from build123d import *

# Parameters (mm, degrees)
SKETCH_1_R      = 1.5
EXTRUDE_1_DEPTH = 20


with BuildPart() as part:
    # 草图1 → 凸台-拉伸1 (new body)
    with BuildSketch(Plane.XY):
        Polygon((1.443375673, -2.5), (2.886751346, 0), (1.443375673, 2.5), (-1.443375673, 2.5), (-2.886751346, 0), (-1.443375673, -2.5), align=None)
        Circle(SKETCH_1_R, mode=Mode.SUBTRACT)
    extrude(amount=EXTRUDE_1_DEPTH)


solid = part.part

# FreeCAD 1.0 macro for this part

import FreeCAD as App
import Part
import Sketcher
Q = App.Units.Quantity


def add_polygon(sketch, points):
    """Adds a closed chain of lines whose ends are joined by coincident constraints."""
    first, n = sketch.GeometryCount, len(points)
    for a, b in zip(points, points[1:] + points[:1]):
        sketch.addGeometry(Part.LineSegment(App.Vector(*a, 0), App.Vector(*b, 0)), False)
    for i in range(n):
        sketch.addConstraint(Sketcher.Constraint("Coincident", first + i, 2, first + (i + 1) % n, 1))

doc = App.newDocument("Part")
body = doc.addObject("PartDesign::Body", "Body")

sketch1 = body.newObject("Sketcher::SketchObject", "Sketch")
sketch1.AttachmentSupport = (doc.getObject("XY_Plane"), [""])
sketch1.MapMode = "FlatFace"
add_polygon(sketch1, [(1.4, -2.5), (2.9, 0), (1.4, 2.5), (-1.4, 2.5), (-2.9, 0), (-1.4, -2.5)])
sketch1.addGeometry(Part.Circle(App.Vector(0, 0, 0), App.Vector(0, 0, 1), 1.5), False)
sketch1.addConstraint(Sketcher.Constraint("Horizontal", 2))
sketch1.addConstraint(Sketcher.Constraint("Horizontal", 5))
sketch1.addConstraint(Sketcher.Constraint("Coincident", 6, 3, -1, 1))
sketch1.addConstraint(Sketcher.Constraint("Symmetric", 0, 2, 3, 2, -1, 1))
sketch1.addConstraint(Sketcher.Constraint("Symmetric", 1, 2, 4, 2, -1, 1))
sketch1.addConstraint(Sketcher.Constraint("PointOnObject", 0, 2, -1))
sketch1.addConstraint(Sketcher.Constraint("Parallel", 0, 3))
sketch1.addConstraint(Sketcher.Constraint("Vertical", 2, 2, 4, 2))
sketch1.addConstraint(Sketcher.Constraint("Diameter", 6, 3.0))
sketch1.addConstraint(Sketcher.Constraint("Angle", 0, Q("60 deg")))
sketch1.addConstraint(Sketcher.Constraint("DistanceY", 4, 2, 2, 2, 5.0))
sketch1.addConstraint(Sketcher.Constraint("DistanceX", 2, 2, 2, 1, 2.886751))
pad1 = body.newObject("PartDesign::Pad", "Pad")
pad1.Profile = sketch1
pad1.Length = 20

doc.recompute()
